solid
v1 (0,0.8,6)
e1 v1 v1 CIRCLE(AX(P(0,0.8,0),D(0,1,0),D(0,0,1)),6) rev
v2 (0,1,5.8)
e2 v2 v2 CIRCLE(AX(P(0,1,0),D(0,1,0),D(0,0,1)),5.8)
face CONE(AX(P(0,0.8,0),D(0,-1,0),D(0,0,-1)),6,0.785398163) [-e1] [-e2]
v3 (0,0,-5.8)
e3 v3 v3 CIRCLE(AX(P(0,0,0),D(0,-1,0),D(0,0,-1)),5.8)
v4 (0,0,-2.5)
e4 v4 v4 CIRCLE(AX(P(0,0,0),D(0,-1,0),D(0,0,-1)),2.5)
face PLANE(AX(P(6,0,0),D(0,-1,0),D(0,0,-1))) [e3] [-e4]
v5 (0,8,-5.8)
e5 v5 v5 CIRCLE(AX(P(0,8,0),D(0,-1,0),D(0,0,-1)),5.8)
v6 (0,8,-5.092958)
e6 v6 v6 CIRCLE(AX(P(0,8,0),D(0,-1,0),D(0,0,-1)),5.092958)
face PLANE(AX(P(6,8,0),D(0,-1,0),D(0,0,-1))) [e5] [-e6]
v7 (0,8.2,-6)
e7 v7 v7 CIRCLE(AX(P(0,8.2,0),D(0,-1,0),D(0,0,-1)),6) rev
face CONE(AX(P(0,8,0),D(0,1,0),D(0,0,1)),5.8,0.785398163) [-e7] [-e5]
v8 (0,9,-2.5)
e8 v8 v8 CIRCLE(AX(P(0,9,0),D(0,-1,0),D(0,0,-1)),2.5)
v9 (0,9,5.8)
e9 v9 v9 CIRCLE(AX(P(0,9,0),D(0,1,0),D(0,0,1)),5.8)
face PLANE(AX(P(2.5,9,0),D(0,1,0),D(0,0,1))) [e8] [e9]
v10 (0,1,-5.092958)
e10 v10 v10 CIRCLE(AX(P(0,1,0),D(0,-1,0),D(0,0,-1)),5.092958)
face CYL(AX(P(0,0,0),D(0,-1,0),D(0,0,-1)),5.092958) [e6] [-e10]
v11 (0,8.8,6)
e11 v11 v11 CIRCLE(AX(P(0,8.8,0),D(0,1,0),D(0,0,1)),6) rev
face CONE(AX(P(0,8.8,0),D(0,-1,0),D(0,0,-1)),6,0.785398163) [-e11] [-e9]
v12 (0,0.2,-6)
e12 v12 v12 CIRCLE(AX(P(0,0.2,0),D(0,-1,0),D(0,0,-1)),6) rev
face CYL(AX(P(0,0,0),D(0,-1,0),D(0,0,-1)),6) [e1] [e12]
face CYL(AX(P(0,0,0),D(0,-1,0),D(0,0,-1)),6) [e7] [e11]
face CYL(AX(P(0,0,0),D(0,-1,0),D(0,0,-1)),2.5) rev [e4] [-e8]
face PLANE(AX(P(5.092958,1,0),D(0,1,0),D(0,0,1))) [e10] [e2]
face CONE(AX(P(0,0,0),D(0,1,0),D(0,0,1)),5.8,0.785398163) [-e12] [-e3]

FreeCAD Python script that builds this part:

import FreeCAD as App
import Part
import Sketcher
Q = App.Units.Quantity


def edges_at(feature, points):
    """Names of the edges that pass closest to the given points."""
    edges = feature.Shape.Edges
    near = lambda p: min(range(len(edges)), key=lambda i: edges[i].distToShape(Part.Vertex(*p))[0])
    return sorted({f"Edge{near(p) + 1}" for p in points})

doc = App.newDocument("Part")
body = doc.addObject("PartDesign::Body", "Body")

sketch1 = body.newObject("Sketcher::SketchObject", "Sketch")
sketch1.AttachmentSupport = (doc.getObject("XY_Plane"), [""])
sketch1.MapMode = "FlatFace"
sketch1.addGeometry(Part.LineSegment(App.Vector(2.5, 9, 0), App.Vector(2.5, 0, 0)), False)
sketch1.addGeometry(Part.LineSegment(App.Vector(2.5, 0, 0), App.Vector(6, 0, 0)), False)
sketch1.addGeometry(Part.LineSegment(App.Vector(6, 0, 0), App.Vector(6, 1, 0)), False)
sketch1.addGeometry(Part.LineSegment(App.Vector(6, 1, 0), App.Vector(5.092958, 1, 0)), False)
sketch1.addGeometry(Part.LineSegment(App.Vector(5.092958, 1, 0), App.Vector(5.092958, 8, 0)), False)
sketch1.addGeometry(Part.LineSegment(App.Vector(5.092958, 8, 0), App.Vector(6, 8, 0)), False)
sketch1.addGeometry(Part.LineSegment(App.Vector(6, 8, 0), App.Vector(6, 9, 0)), False)
sketch1.addGeometry(Part.LineSegment(App.Vector(6, 9, 0), App.Vector(2.5, 9, 0)), False)
sketch1.addConstraint(Sketcher.Constraint("Coincident", 0, 2, 1, 1))
sketch1.addConstraint(Sketcher.Constraint("Coincident", 1, 2, 2, 1))
sketch1.addConstraint(Sketcher.Constraint("Coincident", 2, 2, 3, 1))
sketch1.addConstraint(Sketcher.Constraint("Coincident", 3, 2, 4, 1))
sketch1.addConstraint(Sketcher.Constraint("Coincident", 4, 2, 5, 1))
sketch1.addConstraint(Sketcher.Constraint("Coincident", 5, 2, 6, 1))
sketch1.addConstraint(Sketcher.Constraint("Coincident", 6, 2, 7, 1))
sketch1.addConstraint(Sketcher.Constraint("Coincident", 7, 2, 0, 1))
sketch1.addConstraint(Sketcher.Constraint("Vertical", 0))
sketch1.addConstraint(Sketcher.Constraint("Horizontal", 1))
sketch1.addConstraint(Sketcher.Constraint("Vertical", 2))
sketch1.addConstraint(Sketcher.Constraint("Horizontal", 3))
sketch1.addConstraint(Sketcher.Constraint("Vertical", 4))
sketch1.addConstraint(Sketcher.Constraint("Horizontal", 5))
sketch1.addConstraint(Sketcher.Constraint("Vertical", 6))
sketch1.addConstraint(Sketcher.Constraint("Horizontal", 7))
sketch1.addConstraint(Sketcher.Constraint("PointOnObject", 0, 2, -1))
sketch1.addConstraint(Sketcher.Constraint("Vertical", 2, 2, 5, 2))
sketch1.addConstraint(Sketcher.Constraint("Equal", 2, 6))
sketch1.addConstraint(Sketcher.Constraint("DistanceY", 0, 2, 0, 1, Q("9 mm")))
sketch1.addConstraint(Sketcher.Constraint("DistanceY", 2, 1, 2, 2, Q("1 mm")))
sketch1.addConstraint(Sketcher.Constraint("DistanceX", 1, 1, 1, 2, Q("3.5 mm")))
sketch1.addConstraint(Sketcher.Constraint("DistanceX", -1, 1, 1, 2, Q("6 mm")))
sketch1.addConstraint(Sketcher.Constraint("DistanceX", 3, 2, 3, 1, Q("0.907042 mm")))
revolution = body.newObject("PartDesign::Revolution", "Revolution")
revolution.Profile = sketch1
revolution.ReferenceAxis = (sketch1, ["V_Axis"])
revolution.Angle = 360
doc.recompute()

chamfer = body.newObject("PartDesign::Chamfer", "Chamfer")
chamfer.Base = (revolution, edges_at(revolution, [
    (-6, 0, 0),
    (-6, 1, 0),
    (-6, 8, 0),
    (-6, 9, 0),
]))
chamfer.Size = 0.2

doc.recompute()
